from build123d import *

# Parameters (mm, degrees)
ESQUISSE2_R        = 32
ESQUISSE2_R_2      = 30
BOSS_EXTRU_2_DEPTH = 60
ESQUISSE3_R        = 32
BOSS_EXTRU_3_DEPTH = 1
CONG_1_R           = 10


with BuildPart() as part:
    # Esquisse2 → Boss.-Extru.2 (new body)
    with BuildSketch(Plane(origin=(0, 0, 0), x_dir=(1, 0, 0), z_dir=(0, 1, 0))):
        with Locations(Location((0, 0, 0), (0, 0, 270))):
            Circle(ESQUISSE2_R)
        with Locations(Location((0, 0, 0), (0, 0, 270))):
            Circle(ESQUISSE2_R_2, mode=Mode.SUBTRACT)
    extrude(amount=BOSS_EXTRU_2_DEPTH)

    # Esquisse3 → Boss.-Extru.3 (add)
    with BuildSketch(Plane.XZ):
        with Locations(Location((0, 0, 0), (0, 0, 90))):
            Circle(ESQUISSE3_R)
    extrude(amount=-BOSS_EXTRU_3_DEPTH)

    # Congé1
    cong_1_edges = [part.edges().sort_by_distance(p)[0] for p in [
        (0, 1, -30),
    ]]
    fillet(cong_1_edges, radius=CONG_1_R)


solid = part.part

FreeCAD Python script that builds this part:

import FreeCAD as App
import Part
import Sketcher

V = App.Vector


def edges_at(feature, points):
    """Names of the edges that pass closest to the given points."""
    edges = feature.Shape.Edges
    near = lambda p: min(range(len(edges)), key=lambda i: edges[i].distToShape(Part.Vertex(*p))[0])
    return sorted({f"Edge{near(p) + 1}" for p in points})

doc = App.newDocument("Part")
params = doc.addObject("Spreadsheet::Sheet", "Params")
for row, (alias, value) in enumerate([
    ("sketch1_diameter", "64 mm"),
    ("sketch1_diameter2", "60 mm"),
    ("pad1_length", "60 mm"),
    ("sketch2_diameter", "64 mm"),
    ("pad2_length", "1 mm"),
    ("fillet_radius", "10 mm"),
], start=1):
    params.set(f"A{row}", alias)
    params.set(f"B{row}", "=" + value)
    params.setAlias(f"B{row}", alias)

body = doc.addObject("PartDesign::Body", "Body")

# Sketch on XZ plane
sketch1 = doc.addObject("Sketcher::SketchObject", "Sketch")
body.addObject(sketch1)
sketch1.AttachmentSupport = (doc.XZ_Plane, [""])
sketch1.MapMode = "FlatFace"
sketch1.addGeometry([
    Part.Circle(V(0, 0, 0), V(0, 0, 1), 32),
    Part.Circle(V(0, 0, 0), V(0, 0, 1), 30),
], False)
sketch1.addConstraint([
    Sketcher.Constraint("Coincident", 0, 3, -1, 1),
    Sketcher.Constraint("Coincident", 1, 3, -1, 1),
    Sketcher.Constraint("Diameter", 0, 64.0),
    Sketcher.Constraint("Diameter", 1, 60.0),
])
sketch1.setExpression("Constraints[2]", "Params.sketch1_diameter")
sketch1.setExpression("Constraints[3]", "Params.sketch1_diameter2")
pad1 = doc.addObject("PartDesign::Pad", "Pad")
body.addObject(pad1)
pad1.Profile = sketch1
pad1.setExpression("Length", "Params.pad1_length")
pad1.Reversed = True

# Sketch on XZ plane
sketch2 = doc.addObject("Sketcher::SketchObject", "Sketch001")
body.addObject(sketch2)
sketch2.AttachmentSupport = (doc.XZ_Plane, [""])
sketch2.MapMode = "FlatFace"
sketch2.addGeometry(Part.Circle(V(0, 0, 0), V(0, 0, 1), 32), False)
sketch2.addConstraint([
    Sketcher.Constraint("Coincident", 0, 3, -1, 1),
    Sketcher.Constraint("Diameter", 0, 64.0),
])
sketch2.setExpression("Constraints[1]", "Params.sketch2_diameter")
pad2 = doc.addObject("PartDesign::Pad", "Pad001")
body.addObject(pad2)
pad2.Profile = sketch2
pad2.setExpression("Length", "Params.pad2_length")
pad2.Reversed = True
doc.recompute()

fillet = doc.addObject("PartDesign::Fillet", "Fillet")
body.addObject(fillet)
fillet.Base = (pad2, edges_at(pad2, [(0, 1, -30)]))
fillet.setExpression("Radius", "Params.fillet_radius")

doc.recompute()
